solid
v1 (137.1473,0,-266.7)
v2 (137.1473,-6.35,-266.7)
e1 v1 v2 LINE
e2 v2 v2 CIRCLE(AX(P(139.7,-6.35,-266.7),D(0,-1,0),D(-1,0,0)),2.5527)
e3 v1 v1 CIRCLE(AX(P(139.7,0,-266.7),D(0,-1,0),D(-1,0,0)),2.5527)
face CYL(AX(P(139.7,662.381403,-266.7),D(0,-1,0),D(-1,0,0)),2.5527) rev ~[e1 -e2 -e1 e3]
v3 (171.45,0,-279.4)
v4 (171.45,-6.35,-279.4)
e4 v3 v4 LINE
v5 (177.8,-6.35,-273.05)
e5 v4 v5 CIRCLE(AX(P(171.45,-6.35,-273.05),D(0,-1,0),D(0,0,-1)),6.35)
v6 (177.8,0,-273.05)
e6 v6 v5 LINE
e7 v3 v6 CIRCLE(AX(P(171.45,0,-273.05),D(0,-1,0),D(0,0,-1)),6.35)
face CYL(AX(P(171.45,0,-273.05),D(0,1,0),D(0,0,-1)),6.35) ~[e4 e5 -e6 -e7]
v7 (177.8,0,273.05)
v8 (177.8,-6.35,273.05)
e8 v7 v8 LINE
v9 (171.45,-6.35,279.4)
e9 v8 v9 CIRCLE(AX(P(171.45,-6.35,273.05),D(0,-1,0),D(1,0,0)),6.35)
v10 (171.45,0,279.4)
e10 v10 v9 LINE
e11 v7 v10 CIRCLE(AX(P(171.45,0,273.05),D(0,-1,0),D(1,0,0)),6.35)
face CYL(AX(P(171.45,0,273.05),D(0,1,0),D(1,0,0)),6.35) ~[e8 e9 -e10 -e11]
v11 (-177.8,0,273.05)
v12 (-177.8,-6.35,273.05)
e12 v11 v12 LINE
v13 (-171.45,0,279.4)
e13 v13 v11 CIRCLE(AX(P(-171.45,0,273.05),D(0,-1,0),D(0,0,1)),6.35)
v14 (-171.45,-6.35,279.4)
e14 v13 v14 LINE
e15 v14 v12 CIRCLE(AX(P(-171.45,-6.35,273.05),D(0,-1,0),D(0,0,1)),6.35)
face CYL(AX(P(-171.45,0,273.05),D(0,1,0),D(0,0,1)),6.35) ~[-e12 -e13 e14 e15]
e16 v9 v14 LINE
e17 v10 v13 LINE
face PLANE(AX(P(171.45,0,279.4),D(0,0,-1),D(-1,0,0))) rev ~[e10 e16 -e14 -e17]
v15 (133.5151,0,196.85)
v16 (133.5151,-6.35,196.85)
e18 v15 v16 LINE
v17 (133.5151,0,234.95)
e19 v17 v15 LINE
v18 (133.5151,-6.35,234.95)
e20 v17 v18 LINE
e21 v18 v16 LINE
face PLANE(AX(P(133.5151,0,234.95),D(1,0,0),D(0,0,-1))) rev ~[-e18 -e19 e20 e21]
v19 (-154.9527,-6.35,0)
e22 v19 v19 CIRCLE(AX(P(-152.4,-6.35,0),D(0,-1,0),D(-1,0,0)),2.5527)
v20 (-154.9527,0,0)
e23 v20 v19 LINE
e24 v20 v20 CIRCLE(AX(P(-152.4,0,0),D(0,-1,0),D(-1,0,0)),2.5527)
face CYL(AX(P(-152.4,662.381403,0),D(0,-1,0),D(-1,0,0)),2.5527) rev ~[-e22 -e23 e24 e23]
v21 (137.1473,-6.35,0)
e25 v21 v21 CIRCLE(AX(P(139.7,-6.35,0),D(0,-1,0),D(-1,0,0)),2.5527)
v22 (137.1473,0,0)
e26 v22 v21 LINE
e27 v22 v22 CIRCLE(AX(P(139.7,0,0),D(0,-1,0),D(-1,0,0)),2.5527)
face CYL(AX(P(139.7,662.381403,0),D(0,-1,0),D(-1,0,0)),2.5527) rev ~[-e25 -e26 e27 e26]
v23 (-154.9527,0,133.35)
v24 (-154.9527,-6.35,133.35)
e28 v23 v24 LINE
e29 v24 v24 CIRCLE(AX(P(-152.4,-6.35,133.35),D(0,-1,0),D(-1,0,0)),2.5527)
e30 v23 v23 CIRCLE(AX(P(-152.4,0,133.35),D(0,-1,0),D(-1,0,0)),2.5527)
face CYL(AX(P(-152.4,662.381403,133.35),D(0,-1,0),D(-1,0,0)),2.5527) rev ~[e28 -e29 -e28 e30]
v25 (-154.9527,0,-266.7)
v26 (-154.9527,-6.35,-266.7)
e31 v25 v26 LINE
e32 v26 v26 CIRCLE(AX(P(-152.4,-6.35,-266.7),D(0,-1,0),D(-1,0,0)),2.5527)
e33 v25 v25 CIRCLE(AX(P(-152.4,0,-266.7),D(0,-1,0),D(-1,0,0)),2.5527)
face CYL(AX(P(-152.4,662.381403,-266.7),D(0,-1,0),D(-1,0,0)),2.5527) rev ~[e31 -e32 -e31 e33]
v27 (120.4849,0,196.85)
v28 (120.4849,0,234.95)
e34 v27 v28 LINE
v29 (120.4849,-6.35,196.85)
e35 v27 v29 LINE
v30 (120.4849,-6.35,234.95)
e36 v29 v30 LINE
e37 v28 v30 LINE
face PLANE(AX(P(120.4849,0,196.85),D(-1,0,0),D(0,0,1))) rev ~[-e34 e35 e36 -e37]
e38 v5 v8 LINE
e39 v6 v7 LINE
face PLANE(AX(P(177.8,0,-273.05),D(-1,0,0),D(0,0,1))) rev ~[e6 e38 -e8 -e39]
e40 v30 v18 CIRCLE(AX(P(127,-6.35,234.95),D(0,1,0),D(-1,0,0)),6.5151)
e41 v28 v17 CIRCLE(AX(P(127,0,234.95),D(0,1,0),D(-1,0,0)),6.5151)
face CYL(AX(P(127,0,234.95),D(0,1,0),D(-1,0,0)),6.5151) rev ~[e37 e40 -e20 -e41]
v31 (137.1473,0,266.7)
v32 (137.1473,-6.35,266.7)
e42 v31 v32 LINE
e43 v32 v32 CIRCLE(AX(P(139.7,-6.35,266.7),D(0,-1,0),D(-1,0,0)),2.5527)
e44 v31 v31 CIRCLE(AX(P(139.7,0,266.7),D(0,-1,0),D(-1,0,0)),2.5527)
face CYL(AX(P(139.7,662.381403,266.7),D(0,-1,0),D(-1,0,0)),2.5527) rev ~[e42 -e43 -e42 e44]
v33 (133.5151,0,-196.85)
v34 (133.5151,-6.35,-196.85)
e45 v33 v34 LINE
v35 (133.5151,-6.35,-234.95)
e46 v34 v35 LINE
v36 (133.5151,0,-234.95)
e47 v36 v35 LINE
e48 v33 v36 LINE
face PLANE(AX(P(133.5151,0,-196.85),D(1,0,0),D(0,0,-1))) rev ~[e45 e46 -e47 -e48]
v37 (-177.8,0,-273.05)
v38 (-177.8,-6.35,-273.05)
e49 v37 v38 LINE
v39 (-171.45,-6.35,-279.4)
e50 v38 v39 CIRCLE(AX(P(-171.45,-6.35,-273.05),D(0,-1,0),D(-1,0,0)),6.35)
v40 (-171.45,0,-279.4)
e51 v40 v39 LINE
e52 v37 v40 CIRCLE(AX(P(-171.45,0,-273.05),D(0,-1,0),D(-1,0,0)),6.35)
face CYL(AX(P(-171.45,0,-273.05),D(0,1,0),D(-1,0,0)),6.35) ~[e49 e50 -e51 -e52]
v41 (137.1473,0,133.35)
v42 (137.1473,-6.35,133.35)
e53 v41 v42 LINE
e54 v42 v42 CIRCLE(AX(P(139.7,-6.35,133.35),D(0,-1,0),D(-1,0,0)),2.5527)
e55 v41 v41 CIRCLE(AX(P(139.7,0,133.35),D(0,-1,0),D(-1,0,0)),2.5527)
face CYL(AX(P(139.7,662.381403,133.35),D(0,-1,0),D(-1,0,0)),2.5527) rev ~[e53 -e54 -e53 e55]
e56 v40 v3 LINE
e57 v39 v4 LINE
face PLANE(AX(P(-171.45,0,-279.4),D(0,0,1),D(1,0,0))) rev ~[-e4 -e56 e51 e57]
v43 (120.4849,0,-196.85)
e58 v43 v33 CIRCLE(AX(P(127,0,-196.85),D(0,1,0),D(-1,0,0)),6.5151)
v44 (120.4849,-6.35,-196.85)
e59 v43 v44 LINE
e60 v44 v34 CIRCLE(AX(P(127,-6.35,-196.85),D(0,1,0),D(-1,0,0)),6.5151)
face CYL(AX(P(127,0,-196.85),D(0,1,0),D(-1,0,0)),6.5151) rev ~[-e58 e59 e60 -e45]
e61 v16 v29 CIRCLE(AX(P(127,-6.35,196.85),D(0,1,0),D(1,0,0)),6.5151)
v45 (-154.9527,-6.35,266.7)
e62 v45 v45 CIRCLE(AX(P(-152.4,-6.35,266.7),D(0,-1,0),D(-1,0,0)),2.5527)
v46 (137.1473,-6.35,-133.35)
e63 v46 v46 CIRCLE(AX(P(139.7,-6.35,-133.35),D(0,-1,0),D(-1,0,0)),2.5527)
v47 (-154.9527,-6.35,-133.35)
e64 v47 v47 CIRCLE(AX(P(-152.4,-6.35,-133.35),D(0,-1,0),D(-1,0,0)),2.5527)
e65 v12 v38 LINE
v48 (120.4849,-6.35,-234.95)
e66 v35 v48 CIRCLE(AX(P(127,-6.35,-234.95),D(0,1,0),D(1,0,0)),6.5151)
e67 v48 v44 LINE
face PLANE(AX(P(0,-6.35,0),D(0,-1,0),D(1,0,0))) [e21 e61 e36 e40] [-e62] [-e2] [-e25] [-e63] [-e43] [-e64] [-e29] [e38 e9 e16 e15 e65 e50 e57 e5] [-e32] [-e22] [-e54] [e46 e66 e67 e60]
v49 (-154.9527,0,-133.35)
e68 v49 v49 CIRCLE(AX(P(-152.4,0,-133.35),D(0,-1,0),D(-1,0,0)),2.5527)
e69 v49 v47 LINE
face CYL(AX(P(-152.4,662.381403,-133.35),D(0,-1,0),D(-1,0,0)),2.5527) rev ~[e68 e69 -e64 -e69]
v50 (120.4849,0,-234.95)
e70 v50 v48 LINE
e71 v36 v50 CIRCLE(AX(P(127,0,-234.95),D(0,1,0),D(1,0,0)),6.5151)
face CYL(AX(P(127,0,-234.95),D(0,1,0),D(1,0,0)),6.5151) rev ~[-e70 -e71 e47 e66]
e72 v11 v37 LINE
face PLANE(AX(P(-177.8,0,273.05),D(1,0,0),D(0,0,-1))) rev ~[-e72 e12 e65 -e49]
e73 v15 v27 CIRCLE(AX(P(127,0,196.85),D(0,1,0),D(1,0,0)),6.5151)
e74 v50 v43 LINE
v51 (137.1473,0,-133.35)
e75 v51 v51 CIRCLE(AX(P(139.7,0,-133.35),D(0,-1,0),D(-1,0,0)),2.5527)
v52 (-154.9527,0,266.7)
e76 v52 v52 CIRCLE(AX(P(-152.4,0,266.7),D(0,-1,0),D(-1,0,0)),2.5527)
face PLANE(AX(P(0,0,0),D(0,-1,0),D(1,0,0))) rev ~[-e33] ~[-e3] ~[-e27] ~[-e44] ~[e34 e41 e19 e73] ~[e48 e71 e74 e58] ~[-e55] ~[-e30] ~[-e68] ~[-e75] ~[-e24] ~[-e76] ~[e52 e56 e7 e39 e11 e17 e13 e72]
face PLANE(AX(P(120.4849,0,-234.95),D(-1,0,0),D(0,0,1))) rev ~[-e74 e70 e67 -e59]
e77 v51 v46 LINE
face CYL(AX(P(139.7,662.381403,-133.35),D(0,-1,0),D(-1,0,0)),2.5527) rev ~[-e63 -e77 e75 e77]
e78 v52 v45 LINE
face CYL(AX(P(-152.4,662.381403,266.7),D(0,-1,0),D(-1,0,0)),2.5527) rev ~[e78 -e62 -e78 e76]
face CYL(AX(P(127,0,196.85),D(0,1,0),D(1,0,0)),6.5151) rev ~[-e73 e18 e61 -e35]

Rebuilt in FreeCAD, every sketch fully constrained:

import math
import FreeCAD as App
import Part
import Sketcher

V = App.Vector
Q = App.Units.Quantity

doc = App.newDocument("Part")
params = doc.addObject("Spreadsheet::Sheet", "Params")
for row, (alias, value) in enumerate([
    ("sketch1_radius", "0.25 in"),
    ("sketch1_width", "13.5 in"),
    ("sketch1_height", "21.5 in"),
    ("sketch1_height2", "1.5 in"),
    ("pad1_length", "0.25 in"),
    ("sketch2_diameter", "0.201 in"),
    ("hole_diameter", "0.201 in"),
], start=1):
    params.set(f"A{row}", alias)
    params.set(f"B{row}", "=" + value)
    params.setAlias(f"B{row}", alias)

body = doc.addObject("PartDesign::Body", "Body")

# Sketch on XZ plane
sketch1 = doc.addObject("Sketcher::SketchObject", "Sketch")
body.addObject(sketch1)
sketch1.AttachmentSupport = (doc.XZ_Plane, [""])
sketch1.MapMode = "FlatFace"
sketch1.addGeometry(Part.LineSegment(V(-171, -279, 0), V(171, -279, 0)), False)
sketch1.addGeometry(Part.ArcOfCircle(Part.Circle(V(171, -273, 0), V(0, 0, 1), 6), math.radians(-90), math.radians(0)), False)
sketch1.addGeometry(Part.LineSegment(V(178, -273, 0), V(178, 273, 0)), False)
sketch1.addGeometry(Part.ArcOfCircle(Part.Circle(V(171, 273, 0), V(0, 0, 1), 6), math.radians(0), math.radians(90)), False)
sketch1.addGeometry(Part.LineSegment(V(171, 279, 0), V(-171, 279, 0)), False)
sketch1.addGeometry(Part.ArcOfCircle(Part.Circle(V(-171, 273, 0), V(0, 0, 1), 6), math.radians(90), math.radians(180)), False)
sketch1.addGeometry(Part.LineSegment(V(-178, 273, 0), V(-178, -273, 0)), False)
sketch1.addGeometry(Part.ArcOfCircle(Part.Circle(V(-171, -273, 0), V(0, 0, 1), 6), math.radians(180), math.radians(270)), False)
sketch1.addGeometry(Part.ArcOfCircle(Part.Circle(V(127, -197, 0), V(0, 0, 1), 7), math.radians(0), math.radians(180)), False)
sketch1.addGeometry(Part.LineSegment(V(134, -197, 0), V(134, -235, 0)), False)
sketch1.addGeometry(Part.ArcOfCircle(Part.Circle(V(127, -235, 0), V(0, 0, 1), 7), math.radians(180), math.radians(360)), False)
sketch1.addGeometry(Part.LineSegment(V(120, -235, 0), V(120, -197, 0)), False)
sketch1.addGeometry(Part.LineSegment(V(120, 197, 0), V(120, 235, 0)), False)
sketch1.addGeometry(Part.ArcOfCircle(Part.Circle(V(127, 235, 0), V(0, 0, 1), 7), math.radians(0), math.radians(180)), False)
sketch1.addGeometry(Part.LineSegment(V(134, 235, 0), V(134, 197, 0)), False)
sketch1.addGeometry(Part.ArcOfCircle(Part.Circle(V(127, 197, 0), V(0, 0, 1), 7), math.radians(180), math.radians(360)), False)
sketch1.addConstraint(Sketcher.Constraint("Tangent", 0, 2, 1, 1))
sketch1.addConstraint(Sketcher.Constraint("Tangent", 1, 2, 2, 1))
sketch1.addConstraint(Sketcher.Constraint("Tangent", 2, 2, 3, 1))
sketch1.addConstraint(Sketcher.Constraint("Tangent", 3, 2, 4, 1))
sketch1.addConstraint(Sketcher.Constraint("Tangent", 4, 2, 5, 1))
sketch1.addConstraint(Sketcher.Constraint("Tangent", 5, 2, 6, 1))
sketch1.addConstraint(Sketcher.Constraint("Tangent", 6, 2, 7, 1))
sketch1.addConstraint(Sketcher.Constraint("Tangent", 7, 2, 0, 1))
sketch1.addConstraint(Sketcher.Constraint("Tangent", 8, 1, 9, 1))
sketch1.addConstraint(Sketcher.Constraint("Tangent", 9, 2, 10, 2))
sketch1.addConstraint(Sketcher.Constraint("Tangent", 10, 1, 11, 1))
sketch1.addConstraint(Sketcher.Constraint("Tangent", 11, 2, 8, 2))
sketch1.addConstraint(Sketcher.Constraint("Tangent", 12, 2, 13, 2))
sketch1.addConstraint(Sketcher.Constraint("Tangent", 13, 1, 14, 1))
sketch1.addConstraint(Sketcher.Constraint("Tangent", 14, 2, 15, 2))
sketch1.addConstraint(Sketcher.Constraint("Tangent", 15, 1, 12, 1))
sketch1.addConstraint(Sketcher.Constraint("Horizontal", 0))
sketch1.addConstraint(Sketcher.Constraint("Vertical", 2))
sketch1.addConstraint(Sketcher.Constraint("Horizontal", 4))
sketch1.addConstraint(Sketcher.Constraint("Vertical", 6))
sketch1.addConstraint(Sketcher.Constraint("Vertical", 9))
sketch1.addConstraint(Sketcher.Constraint("Vertical", 11))
sketch1.addConstraint(Sketcher.Constraint("Vertical", 12))
sketch1.addConstraint(Sketcher.Constraint("Vertical", 14))
sketch1.addConstraint(Sketcher.Constraint("Equal", 1, 3))
sketch1.addConstraint(Sketcher.Constraint("Equal", 3, 5))
sketch1.addConstraint(Sketcher.Constraint("Equal", 5, 7))
sketch1.addConstraint(Sketcher.Constraint("Equal", 10, 13))
sketch1.addConstraint(Sketcher.Constraint("Symmetric", 1, 3, 5, 3, -1, 1))
sketch1.addConstraint(Sketcher.Constraint("Symmetric", 10, 3, 13, 3, -1))
sketch1.addConstraint(Sketcher.Constraint("Equal", 11, 12))
sketch1.addConstraint(Sketcher.Constraint("Radius", 1, Q("0.25 in")))
sketch1.addConstraint(Sketcher.Constraint("DistanceX", 0, 1, 0, 2, Q("13.5 in")))
sketch1.addConstraint(Sketcher.Constraint("DistanceY", 2, 1, 2, 2, Q("21.5 in")))
sketch1.addConstraint(Sketcher.Constraint("DistanceY", 9, 2, 9, 1, Q("1.5 in")))
sketch1.addConstraint(Sketcher.Constraint("DistanceX", -1, 1, 8, 3, Q("5 in")))
sketch1.addConstraint(Sketcher.Constraint("DistanceY", 1, 3, 8, 3, Q("3 in")))
sketch1.addConstraint(Sketcher.Constraint("Radius", 8, Q("0.2565 in")))
sketch1.setExpression("Constraints[31]", "Params.sketch1_radius")
sketch1.setExpression("Constraints[32]", "Params.sketch1_width")
sketch1.setExpression("Constraints[33]", "Params.sketch1_height")
sketch1.setExpression("Constraints[34]", "Params.sketch1_height2")
pad1 = doc.addObject("PartDesign::Pad", "Pad")
body.addObject(pad1)
pad1.Profile = sketch1
pad1.setExpression("Length", "Params.pad1_length")

# Sketch on XZ plane
sketch2 = doc.addObject("Sketcher::SketchObject", "Sketch001")
body.addObject(sketch2)
sketch2.AttachmentSupport = (doc.XZ_Plane, [""])
sketch2.MapMode = "FlatFace"
sketch2.addGeometry(Part.Circle(V(139.7, -266.7, 0), V(0, 0, 1), 2.6), False)
sketch2.addGeometry(Part.Circle(V(139.7, -133.3, 0), V(0, 0, 1), 2.6), False)
sketch2.addGeometry(Part.Circle(V(139.7, 0, 0), V(0, 0, 1), 2.6), False)
sketch2.addGeometry(Part.Circle(V(139.7, 133.3, 0), V(0, 0, 1), 2.6), False)
sketch2.addGeometry(Part.Circle(V(139.7, 266.7, 0), V(0, 0, 1), 2.6), False)
sketch2.addGeometry(Part.Circle(V(-152.4, -266.7, 0), V(0, 0, 1), 2.6), False)
sketch2.addGeometry(Part.Circle(V(-152.4, 0, 0), V(0, 0, 1), 2.6), False)
sketch2.addGeometry(Part.Circle(V(-152.4, 133.3, 0), V(0, 0, 1), 2.6), False)
sketch2.addGeometry(Part.Circle(V(-152.4, 266.7, 0), V(0, 0, 1), 2.6), False)
sketch2.addGeometry(Part.Circle(V(-152.4, -133.3, 0), V(0, 0, 1), 2.6), False)
sketch2.addConstraint(Sketcher.Constraint("Equal", 0, 1))
sketch2.addConstraint(Sketcher.Constraint("Equal", 1, 2))
sketch2.addConstraint(Sketcher.Constraint("Equal", 2, 3))
sketch2.addConstraint(Sketcher.Constraint("Equal", 3, 4))
sketch2.addConstraint(Sketcher.Constraint("Equal", 4, 5))
sketch2.addConstraint(Sketcher.Constraint("Equal", 5, 6))
sketch2.addConstraint(Sketcher.Constraint("Equal", 6, 7))
sketch2.addConstraint(Sketcher.Constraint("Equal", 7, 8))
sketch2.addConstraint(Sketcher.Constraint("Equal", 8, 9))
sketch2.addConstraint(Sketcher.Constraint("Symmetric", 1, 3, 3, 3, -1))
sketch2.addConstraint(Sketcher.Constraint("Symmetric", 0, 3, 4, 3, -1))
sketch2.addConstraint(Sketcher.Constraint("Symmetric", 5, 3, 8, 3, -1))
sketch2.addConstraint(Sketcher.Constraint("Symmetric", 7, 3, 9, 3, -1))
sketch2.addConstraint(Sketcher.Constraint("PointOnObject", 2, 3, -1))
sketch2.addConstraint(Sketcher.Constraint("PointOnObject", 6, 3, -1))
sketch2.addConstraint(Sketcher.Constraint("Horizontal", 0, 3, 5, 3))
sketch2.addConstraint(Sketcher.Constraint("Horizontal", 3, 3, 7, 3))
sketch2.addConstraint(Sketcher.Constraint("Vertical", 0, 3, 1, 3))
sketch2.addConstraint(Sketcher.Constraint("Vertical", 1, 3, 2, 3))
sketch2.addConstraint(Sketcher.Constraint("Vertical", 5, 3, 6, 3))
sketch2.addConstraint(Sketcher.Constraint("Vertical", 6, 3, 7, 3))
sketch2.addConstraint(Sketcher.Constraint("Diameter", 0, Q("0.201 in")))
sketch2.addConstraint(Sketcher.Constraint("DistanceX", 5, 3, -1, 1, Q("6 in")))
sketch2.addConstraint(Sketcher.Constraint("DistanceY", 0, 3, 4, 3, Q("21 in")))
sketch2.addConstraint(Sketcher.Constraint("DistanceX", -1, 1, 0, 3, Q("5.5 in")))
sketch2.addConstraint(Sketcher.Constraint("DistanceY", 1, 3, 3, 3, Q("10.5 in")))
sketch2.setExpression("Constraints[21]", "Params.sketch2_diameter")
doc.recompute()
hole = doc.addObject("PartDesign::Hole", "Hole")
body.addObject(hole)
hole.Profile = sketch2
hole.ThreadType = "None"
hole.setExpression("Diameter", "Params.hole_diameter")
hole.DepthType = "ThroughAll"
hole.Reversed = True

doc.recompute()
